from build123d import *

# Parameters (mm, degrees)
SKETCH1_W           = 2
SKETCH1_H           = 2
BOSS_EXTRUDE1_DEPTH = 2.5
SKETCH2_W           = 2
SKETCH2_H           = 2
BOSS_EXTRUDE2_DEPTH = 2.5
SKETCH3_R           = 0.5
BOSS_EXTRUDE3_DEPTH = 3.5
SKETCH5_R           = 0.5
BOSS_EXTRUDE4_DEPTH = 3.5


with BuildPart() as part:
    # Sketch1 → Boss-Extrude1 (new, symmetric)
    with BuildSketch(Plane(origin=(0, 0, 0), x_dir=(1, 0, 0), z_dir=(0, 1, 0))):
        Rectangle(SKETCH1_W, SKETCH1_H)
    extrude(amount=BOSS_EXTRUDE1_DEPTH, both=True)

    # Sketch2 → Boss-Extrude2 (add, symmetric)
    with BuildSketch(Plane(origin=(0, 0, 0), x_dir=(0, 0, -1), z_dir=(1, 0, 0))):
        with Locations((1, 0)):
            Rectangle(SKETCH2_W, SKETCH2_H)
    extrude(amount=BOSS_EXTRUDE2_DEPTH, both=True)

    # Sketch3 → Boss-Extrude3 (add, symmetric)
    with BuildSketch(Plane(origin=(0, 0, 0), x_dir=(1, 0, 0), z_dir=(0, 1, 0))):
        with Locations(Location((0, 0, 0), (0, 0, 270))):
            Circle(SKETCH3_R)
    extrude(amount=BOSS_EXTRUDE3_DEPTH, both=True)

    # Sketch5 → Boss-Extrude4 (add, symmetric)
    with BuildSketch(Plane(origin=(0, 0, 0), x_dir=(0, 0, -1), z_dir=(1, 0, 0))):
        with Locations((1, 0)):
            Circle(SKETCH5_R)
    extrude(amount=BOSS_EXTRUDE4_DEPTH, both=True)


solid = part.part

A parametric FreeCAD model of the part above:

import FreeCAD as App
import Part
import Sketcher
from FreeCAD import Vector
Q = App.Units.Quantity


def add_polygon(sketch, points):
    """Adds a closed chain of lines whose ends are joined by coincident constraints."""
    first, n = sketch.GeometryCount, len(points)
    for a, b in zip(points, points[1:] + points[:1]):
        sketch.addGeometry(Part.LineSegment(App.Vector(*a, 0), App.Vector(*b, 0)), False)
    for i in range(n):
        sketch.addConstraint(Sketcher.Constraint("Coincident", first + i, 2, first + (i + 1) % n, 1))

doc = App.newDocument("Part")
body = doc.addObject("PartDesign::Body", "Body")

# Sketch on XZ plane
sketch1 = body.newObject("Sketcher::SketchObject", "Sketch")
sketch1.AttachmentSupport = (doc.getObject("XZ_Plane"), [""])
sketch1.MapMode = "FlatFace"
add_polygon(sketch1, [(-1, -1), (-1, 1), (1, 1), (1, -1)])  # lines 0-3
sketch1.addConstraint([
    Sketcher.Constraint("Vertical", 0),
    Sketcher.Constraint("Horizontal", 1),
    Sketcher.Constraint("Vertical", 2),
    Sketcher.Constraint("Horizontal", 3),
    Sketcher.Constraint("Symmetric", 0, 2, 2, 2, -1, 1),
    Sketcher.Constraint("Equal", 3, 0),
    Sketcher.Constraint("DistanceX", 1, 1, 1, 2, Q("2 mm")),
])
pad1 = body.newObject("PartDesign::Pad", "Pad")
pad1.Profile = sketch1
pad1.Length = 5
pad1.Midplane = True

# Sketch on YZ plane
sketch2 = body.newObject("Sketcher::SketchObject", "Sketch001")
sketch2.AttachmentSupport = (doc.getObject("YZ_Plane"), [""])
sketch2.MapMode = "FlatFace"
add_polygon(sketch2, [(1, 0), (-1, 0), (-1, -2), (1, -2)])  # lines 0-3
sketch2.addConstraint([
    Sketcher.Constraint("Horizontal", 0),
    Sketcher.Constraint("Vertical", 1),
    Sketcher.Constraint("Horizontal", 2),
    Sketcher.Constraint("Vertical", 3),
    Sketcher.Constraint("Symmetric", 0, 2, 3, 2, -1, 1),
    Sketcher.Constraint("Equal", 2, 1),
    Sketcher.Constraint("DistanceX", 0, 2, 0, 1, Q("2 mm")),
])
pad2 = body.newObject("PartDesign::Pad", "Pad001")
pad2.Profile = sketch2
pad2.Length = 5
pad2.Midplane = True

# Sketch on XZ plane
sketch3 = body.newObject("Sketcher::SketchObject", "Sketch002")
sketch3.AttachmentSupport = (doc.getObject("XZ_Plane"), [""])
sketch3.MapMode = "FlatFace"
sketch3.addGeometry(Part.Circle(Vector(0, 0, 0), Vector(0, 0, 1), 0.5), False)
sketch3.addConstraint([
    Sketcher.Constraint("Coincident", 0, 3, -1, 1),
    Sketcher.Constraint("Diameter", 0, Q("1 mm")),
])
pad3 = body.newObject("PartDesign::Pad", "Pad002")
pad3.Profile = sketch3
pad3.Length = 7
pad3.Midplane = True

# Sketch on YZ plane
sketch4 = body.newObject("Sketcher::SketchObject", "Sketch003")
sketch4.AttachmentSupport = (doc.getObject("YZ_Plane"), [""])
sketch4.MapMode = "FlatFace"
sketch4.addGeometry(Part.Circle(Vector(0, -1, 0), Vector(0, 0, 1), 0.5), False)
sketch4.addConstraint([
    Sketcher.Constraint("PointOnObject", 0, 3, -2),
    Sketcher.Constraint("Diameter", 0, Q("1 mm")),
    Sketcher.Constraint("DistanceY", 0, 3, -1, 1, Q("1 mm")),
])
pad4 = body.newObject("PartDesign::Pad", "Pad003")
pad4.Profile = sketch4
pad4.Length = 7
pad4.Midplane = True

doc.recompute()
